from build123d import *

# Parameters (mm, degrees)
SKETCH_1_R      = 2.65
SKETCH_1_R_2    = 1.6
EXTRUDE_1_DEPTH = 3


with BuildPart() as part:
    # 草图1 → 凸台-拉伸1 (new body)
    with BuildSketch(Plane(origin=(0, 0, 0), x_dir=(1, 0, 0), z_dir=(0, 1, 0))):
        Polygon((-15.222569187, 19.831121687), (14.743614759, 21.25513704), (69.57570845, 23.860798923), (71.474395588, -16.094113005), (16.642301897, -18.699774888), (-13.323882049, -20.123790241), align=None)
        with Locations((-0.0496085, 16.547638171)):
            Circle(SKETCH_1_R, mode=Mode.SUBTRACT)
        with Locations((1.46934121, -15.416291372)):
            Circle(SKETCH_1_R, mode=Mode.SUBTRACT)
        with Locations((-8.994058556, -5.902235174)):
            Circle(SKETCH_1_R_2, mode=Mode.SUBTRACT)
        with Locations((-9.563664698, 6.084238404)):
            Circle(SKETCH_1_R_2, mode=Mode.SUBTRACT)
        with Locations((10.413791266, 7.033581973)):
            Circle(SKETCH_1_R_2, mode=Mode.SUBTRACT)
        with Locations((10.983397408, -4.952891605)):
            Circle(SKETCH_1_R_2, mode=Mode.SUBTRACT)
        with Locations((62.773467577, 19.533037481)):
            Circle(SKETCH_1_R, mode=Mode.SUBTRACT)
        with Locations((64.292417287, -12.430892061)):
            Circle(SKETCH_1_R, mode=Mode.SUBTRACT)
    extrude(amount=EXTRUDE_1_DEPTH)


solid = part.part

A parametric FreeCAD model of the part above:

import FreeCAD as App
import Part
import Sketcher
from FreeCAD import Vector
Q = App.Units.Quantity


def add_polygon(sketch, points):
    """Adds a closed chain of lines whose ends are joined by coincident constraints."""
    first, n = sketch.GeometryCount, len(points)
    for a, b in zip(points, points[1:] + points[:1]):
        sketch.addGeometry(Part.LineSegment(App.Vector(*a, 0), App.Vector(*b, 0)), False)
    for i in range(n):
        sketch.addConstraint(Sketcher.Constraint("Coincident", first + i, 2, first + (i + 1) % n, 1))

doc = App.newDocument("Part")
body = doc.addObject("PartDesign::Body", "Body")

# Sketch on XZ plane
sketch1 = body.newObject("Sketcher::SketchObject", "Sketch")
sketch1.AttachmentSupport = (doc.getObject("XZ_Plane"), [""])
sketch1.MapMode = "FlatFace"
add_polygon(sketch1, [(14.743615, -21.255137), (-15.222569, -19.831122), (-13.323882, 20.12379), (16.642302, 18.699775), (71.474396, 16.094113), (69.575708, -23.860799)])  # lines 0-5
sketch1.addGeometry(Part.Circle(Vector(64.292417, 12.430892, 0), Vector(0, 0, 1), 2.65), False)  # 6
sketch1.addGeometry(Part.Circle(Vector(1.469341, 15.416291, 0), Vector(0, 0, 1), 2.65), False)  # 7
sketch1.addGeometry(Part.Circle(Vector(10.983397, 4.952892, 0), Vector(0, 0, 1), 1.6), False)  # 8
sketch1.addGeometry(Part.Circle(Vector(-8.994059, 5.902235, 0), Vector(0, 0, 1), 1.6), False)  # 9
sketch1.addGeometry(Part.Circle(Vector(62.773468, -19.533037, 0), Vector(0, 0, 1), 2.65), False)  # 10
sketch1.addGeometry(Part.Circle(Vector(10.413791, -7.033582, 0), Vector(0, 0, 1), 1.6), False)  # 11
sketch1.addGeometry(Part.Circle(Vector(-9.563665, -6.084238, 0), Vector(0, 0, 1), 1.6), False)  # 12
sketch1.addGeometry(Part.Circle(Vector(-0.049608, -16.547638, 0), Vector(0, 0, 1), 2.65), False)  # 13
sketch1.addConstraint(Sketcher.Constraint("Equal", 6, 7))
sketch1.addConstraint(Sketcher.Constraint("Equal", 8, 9))
sketch1.addConstraint(Sketcher.Constraint("Equal", 7, 10))
sketch1.addConstraint(Sketcher.Constraint("Equal", 9, 11))
sketch1.addConstraint(Sketcher.Constraint("Equal", 11, 12))
sketch1.addConstraint(Sketcher.Constraint("Equal", 10, 13))
sketch1.addConstraint(Sketcher.Constraint("Perpendicular", 0, 1))
sketch1.addConstraint(Sketcher.Constraint("Perpendicular", 1, 2))
sketch1.addConstraint(Sketcher.Constraint("Parallel", 2, 3))
sketch1.addConstraint(Sketcher.Constraint("Perpendicular", 3, 4))
sketch1.addConstraint(Sketcher.Constraint("Perpendicular", 4, 5))
sketch1.addConstraint(Sketcher.Constraint("Equal", 0, 2))
sketch1.addConstraint(Sketcher.Constraint("Diameter", 6, Q("5.3 mm")))
sketch1.addConstraint(Sketcher.Constraint("Diameter", 8, Q("3.2 mm")))
sketch1.addConstraint(Sketcher.Constraint("Distance", 0, Q("30 mm")))
sketch1.addConstraint(Sketcher.Constraint("Distance", 1, Q("40 mm")))
sketch1.addConstraint(Sketcher.Constraint("DistanceY", 8, 3, 6, 3, Q("7.478 mm")))
sketch1.addConstraint(Sketcher.Constraint("DistanceX", 8, 3, 3, 2, Q("60.490998 mm")))
sketch1.addConstraint(Sketcher.Constraint("DistanceX", -1, 1, 2, 2, Q("16.642302 mm")))
sketch1.addConstraint(Sketcher.Constraint("DistanceY", 4, 2, -1, 1, Q("23.860799 mm")))
sketch1.addConstraint(Sketcher.Constraint("DistanceY", 6, 3, 7, 3, Q("2.985399 mm")))
sketch1.addConstraint(Sketcher.Constraint("DistanceX", 9, 3, 7, 3, Q("10.4634 mm")))
sketch1.addConstraint(Sketcher.Constraint("DistanceY", 10, 3, 12, 3, Q("13.448799 mm")))
sketch1.addConstraint(Sketcher.Constraint("DistanceX", 13, 3, 11, 3, Q("10.4634 mm")))
sketch1.addConstraint(Sketcher.Constraint("DistanceY", 13, 3, 12, 3, Q("10.4634 mm")))
sketch1.addConstraint(Sketcher.Constraint("DistanceY", 7, 3, 1, 2, Q("4.707499 mm")))
sketch1.addConstraint(Sketcher.Constraint("DistanceY", 5, 2, 13, 3, Q("4.707499 mm")))
sketch1.addConstraint(Sketcher.Constraint("Distance", 3, Q("54.89397 mm")))
sketch1.addConstraint(Sketcher.Constraint("DistanceX", -1, 1, 7, 3, Q("1.469341 mm")))
sketch1.addConstraint(Sketcher.Constraint("DistanceY", -1, 1, 7, 3, Q("15.416291 mm")))
sketch1.addConstraint(Sketcher.Constraint("DistanceX", -1, 1, 11, 3, Q("10.413791 mm")))
sketch1.addConstraint(Sketcher.Constraint("DistanceY", 11, 3, -1, 1, Q("7.033582 mm")))
sketch1.addConstraint(Sketcher.Constraint("DistanceX", 8, 3, 6, 3, Q("53.30902 mm")))
sketch1.addConstraint(Sketcher.Constraint("DistanceX", 10, 3, 6, 3, Q("1.51895 mm")))
sketch1.addConstraint(Sketcher.Constraint("DistanceY", 9, 3, 2, 2, Q("12.79754 mm")))
sketch1.addConstraint(Sketcher.Constraint("DistanceX", 12, 3, 5, 2, Q("24.307279 mm")))
pad1 = body.newObject("PartDesign::Pad", "Pad")
pad1.Profile = sketch1
pad1.Length = 3
pad1.Reversed = True

doc.recompute()
